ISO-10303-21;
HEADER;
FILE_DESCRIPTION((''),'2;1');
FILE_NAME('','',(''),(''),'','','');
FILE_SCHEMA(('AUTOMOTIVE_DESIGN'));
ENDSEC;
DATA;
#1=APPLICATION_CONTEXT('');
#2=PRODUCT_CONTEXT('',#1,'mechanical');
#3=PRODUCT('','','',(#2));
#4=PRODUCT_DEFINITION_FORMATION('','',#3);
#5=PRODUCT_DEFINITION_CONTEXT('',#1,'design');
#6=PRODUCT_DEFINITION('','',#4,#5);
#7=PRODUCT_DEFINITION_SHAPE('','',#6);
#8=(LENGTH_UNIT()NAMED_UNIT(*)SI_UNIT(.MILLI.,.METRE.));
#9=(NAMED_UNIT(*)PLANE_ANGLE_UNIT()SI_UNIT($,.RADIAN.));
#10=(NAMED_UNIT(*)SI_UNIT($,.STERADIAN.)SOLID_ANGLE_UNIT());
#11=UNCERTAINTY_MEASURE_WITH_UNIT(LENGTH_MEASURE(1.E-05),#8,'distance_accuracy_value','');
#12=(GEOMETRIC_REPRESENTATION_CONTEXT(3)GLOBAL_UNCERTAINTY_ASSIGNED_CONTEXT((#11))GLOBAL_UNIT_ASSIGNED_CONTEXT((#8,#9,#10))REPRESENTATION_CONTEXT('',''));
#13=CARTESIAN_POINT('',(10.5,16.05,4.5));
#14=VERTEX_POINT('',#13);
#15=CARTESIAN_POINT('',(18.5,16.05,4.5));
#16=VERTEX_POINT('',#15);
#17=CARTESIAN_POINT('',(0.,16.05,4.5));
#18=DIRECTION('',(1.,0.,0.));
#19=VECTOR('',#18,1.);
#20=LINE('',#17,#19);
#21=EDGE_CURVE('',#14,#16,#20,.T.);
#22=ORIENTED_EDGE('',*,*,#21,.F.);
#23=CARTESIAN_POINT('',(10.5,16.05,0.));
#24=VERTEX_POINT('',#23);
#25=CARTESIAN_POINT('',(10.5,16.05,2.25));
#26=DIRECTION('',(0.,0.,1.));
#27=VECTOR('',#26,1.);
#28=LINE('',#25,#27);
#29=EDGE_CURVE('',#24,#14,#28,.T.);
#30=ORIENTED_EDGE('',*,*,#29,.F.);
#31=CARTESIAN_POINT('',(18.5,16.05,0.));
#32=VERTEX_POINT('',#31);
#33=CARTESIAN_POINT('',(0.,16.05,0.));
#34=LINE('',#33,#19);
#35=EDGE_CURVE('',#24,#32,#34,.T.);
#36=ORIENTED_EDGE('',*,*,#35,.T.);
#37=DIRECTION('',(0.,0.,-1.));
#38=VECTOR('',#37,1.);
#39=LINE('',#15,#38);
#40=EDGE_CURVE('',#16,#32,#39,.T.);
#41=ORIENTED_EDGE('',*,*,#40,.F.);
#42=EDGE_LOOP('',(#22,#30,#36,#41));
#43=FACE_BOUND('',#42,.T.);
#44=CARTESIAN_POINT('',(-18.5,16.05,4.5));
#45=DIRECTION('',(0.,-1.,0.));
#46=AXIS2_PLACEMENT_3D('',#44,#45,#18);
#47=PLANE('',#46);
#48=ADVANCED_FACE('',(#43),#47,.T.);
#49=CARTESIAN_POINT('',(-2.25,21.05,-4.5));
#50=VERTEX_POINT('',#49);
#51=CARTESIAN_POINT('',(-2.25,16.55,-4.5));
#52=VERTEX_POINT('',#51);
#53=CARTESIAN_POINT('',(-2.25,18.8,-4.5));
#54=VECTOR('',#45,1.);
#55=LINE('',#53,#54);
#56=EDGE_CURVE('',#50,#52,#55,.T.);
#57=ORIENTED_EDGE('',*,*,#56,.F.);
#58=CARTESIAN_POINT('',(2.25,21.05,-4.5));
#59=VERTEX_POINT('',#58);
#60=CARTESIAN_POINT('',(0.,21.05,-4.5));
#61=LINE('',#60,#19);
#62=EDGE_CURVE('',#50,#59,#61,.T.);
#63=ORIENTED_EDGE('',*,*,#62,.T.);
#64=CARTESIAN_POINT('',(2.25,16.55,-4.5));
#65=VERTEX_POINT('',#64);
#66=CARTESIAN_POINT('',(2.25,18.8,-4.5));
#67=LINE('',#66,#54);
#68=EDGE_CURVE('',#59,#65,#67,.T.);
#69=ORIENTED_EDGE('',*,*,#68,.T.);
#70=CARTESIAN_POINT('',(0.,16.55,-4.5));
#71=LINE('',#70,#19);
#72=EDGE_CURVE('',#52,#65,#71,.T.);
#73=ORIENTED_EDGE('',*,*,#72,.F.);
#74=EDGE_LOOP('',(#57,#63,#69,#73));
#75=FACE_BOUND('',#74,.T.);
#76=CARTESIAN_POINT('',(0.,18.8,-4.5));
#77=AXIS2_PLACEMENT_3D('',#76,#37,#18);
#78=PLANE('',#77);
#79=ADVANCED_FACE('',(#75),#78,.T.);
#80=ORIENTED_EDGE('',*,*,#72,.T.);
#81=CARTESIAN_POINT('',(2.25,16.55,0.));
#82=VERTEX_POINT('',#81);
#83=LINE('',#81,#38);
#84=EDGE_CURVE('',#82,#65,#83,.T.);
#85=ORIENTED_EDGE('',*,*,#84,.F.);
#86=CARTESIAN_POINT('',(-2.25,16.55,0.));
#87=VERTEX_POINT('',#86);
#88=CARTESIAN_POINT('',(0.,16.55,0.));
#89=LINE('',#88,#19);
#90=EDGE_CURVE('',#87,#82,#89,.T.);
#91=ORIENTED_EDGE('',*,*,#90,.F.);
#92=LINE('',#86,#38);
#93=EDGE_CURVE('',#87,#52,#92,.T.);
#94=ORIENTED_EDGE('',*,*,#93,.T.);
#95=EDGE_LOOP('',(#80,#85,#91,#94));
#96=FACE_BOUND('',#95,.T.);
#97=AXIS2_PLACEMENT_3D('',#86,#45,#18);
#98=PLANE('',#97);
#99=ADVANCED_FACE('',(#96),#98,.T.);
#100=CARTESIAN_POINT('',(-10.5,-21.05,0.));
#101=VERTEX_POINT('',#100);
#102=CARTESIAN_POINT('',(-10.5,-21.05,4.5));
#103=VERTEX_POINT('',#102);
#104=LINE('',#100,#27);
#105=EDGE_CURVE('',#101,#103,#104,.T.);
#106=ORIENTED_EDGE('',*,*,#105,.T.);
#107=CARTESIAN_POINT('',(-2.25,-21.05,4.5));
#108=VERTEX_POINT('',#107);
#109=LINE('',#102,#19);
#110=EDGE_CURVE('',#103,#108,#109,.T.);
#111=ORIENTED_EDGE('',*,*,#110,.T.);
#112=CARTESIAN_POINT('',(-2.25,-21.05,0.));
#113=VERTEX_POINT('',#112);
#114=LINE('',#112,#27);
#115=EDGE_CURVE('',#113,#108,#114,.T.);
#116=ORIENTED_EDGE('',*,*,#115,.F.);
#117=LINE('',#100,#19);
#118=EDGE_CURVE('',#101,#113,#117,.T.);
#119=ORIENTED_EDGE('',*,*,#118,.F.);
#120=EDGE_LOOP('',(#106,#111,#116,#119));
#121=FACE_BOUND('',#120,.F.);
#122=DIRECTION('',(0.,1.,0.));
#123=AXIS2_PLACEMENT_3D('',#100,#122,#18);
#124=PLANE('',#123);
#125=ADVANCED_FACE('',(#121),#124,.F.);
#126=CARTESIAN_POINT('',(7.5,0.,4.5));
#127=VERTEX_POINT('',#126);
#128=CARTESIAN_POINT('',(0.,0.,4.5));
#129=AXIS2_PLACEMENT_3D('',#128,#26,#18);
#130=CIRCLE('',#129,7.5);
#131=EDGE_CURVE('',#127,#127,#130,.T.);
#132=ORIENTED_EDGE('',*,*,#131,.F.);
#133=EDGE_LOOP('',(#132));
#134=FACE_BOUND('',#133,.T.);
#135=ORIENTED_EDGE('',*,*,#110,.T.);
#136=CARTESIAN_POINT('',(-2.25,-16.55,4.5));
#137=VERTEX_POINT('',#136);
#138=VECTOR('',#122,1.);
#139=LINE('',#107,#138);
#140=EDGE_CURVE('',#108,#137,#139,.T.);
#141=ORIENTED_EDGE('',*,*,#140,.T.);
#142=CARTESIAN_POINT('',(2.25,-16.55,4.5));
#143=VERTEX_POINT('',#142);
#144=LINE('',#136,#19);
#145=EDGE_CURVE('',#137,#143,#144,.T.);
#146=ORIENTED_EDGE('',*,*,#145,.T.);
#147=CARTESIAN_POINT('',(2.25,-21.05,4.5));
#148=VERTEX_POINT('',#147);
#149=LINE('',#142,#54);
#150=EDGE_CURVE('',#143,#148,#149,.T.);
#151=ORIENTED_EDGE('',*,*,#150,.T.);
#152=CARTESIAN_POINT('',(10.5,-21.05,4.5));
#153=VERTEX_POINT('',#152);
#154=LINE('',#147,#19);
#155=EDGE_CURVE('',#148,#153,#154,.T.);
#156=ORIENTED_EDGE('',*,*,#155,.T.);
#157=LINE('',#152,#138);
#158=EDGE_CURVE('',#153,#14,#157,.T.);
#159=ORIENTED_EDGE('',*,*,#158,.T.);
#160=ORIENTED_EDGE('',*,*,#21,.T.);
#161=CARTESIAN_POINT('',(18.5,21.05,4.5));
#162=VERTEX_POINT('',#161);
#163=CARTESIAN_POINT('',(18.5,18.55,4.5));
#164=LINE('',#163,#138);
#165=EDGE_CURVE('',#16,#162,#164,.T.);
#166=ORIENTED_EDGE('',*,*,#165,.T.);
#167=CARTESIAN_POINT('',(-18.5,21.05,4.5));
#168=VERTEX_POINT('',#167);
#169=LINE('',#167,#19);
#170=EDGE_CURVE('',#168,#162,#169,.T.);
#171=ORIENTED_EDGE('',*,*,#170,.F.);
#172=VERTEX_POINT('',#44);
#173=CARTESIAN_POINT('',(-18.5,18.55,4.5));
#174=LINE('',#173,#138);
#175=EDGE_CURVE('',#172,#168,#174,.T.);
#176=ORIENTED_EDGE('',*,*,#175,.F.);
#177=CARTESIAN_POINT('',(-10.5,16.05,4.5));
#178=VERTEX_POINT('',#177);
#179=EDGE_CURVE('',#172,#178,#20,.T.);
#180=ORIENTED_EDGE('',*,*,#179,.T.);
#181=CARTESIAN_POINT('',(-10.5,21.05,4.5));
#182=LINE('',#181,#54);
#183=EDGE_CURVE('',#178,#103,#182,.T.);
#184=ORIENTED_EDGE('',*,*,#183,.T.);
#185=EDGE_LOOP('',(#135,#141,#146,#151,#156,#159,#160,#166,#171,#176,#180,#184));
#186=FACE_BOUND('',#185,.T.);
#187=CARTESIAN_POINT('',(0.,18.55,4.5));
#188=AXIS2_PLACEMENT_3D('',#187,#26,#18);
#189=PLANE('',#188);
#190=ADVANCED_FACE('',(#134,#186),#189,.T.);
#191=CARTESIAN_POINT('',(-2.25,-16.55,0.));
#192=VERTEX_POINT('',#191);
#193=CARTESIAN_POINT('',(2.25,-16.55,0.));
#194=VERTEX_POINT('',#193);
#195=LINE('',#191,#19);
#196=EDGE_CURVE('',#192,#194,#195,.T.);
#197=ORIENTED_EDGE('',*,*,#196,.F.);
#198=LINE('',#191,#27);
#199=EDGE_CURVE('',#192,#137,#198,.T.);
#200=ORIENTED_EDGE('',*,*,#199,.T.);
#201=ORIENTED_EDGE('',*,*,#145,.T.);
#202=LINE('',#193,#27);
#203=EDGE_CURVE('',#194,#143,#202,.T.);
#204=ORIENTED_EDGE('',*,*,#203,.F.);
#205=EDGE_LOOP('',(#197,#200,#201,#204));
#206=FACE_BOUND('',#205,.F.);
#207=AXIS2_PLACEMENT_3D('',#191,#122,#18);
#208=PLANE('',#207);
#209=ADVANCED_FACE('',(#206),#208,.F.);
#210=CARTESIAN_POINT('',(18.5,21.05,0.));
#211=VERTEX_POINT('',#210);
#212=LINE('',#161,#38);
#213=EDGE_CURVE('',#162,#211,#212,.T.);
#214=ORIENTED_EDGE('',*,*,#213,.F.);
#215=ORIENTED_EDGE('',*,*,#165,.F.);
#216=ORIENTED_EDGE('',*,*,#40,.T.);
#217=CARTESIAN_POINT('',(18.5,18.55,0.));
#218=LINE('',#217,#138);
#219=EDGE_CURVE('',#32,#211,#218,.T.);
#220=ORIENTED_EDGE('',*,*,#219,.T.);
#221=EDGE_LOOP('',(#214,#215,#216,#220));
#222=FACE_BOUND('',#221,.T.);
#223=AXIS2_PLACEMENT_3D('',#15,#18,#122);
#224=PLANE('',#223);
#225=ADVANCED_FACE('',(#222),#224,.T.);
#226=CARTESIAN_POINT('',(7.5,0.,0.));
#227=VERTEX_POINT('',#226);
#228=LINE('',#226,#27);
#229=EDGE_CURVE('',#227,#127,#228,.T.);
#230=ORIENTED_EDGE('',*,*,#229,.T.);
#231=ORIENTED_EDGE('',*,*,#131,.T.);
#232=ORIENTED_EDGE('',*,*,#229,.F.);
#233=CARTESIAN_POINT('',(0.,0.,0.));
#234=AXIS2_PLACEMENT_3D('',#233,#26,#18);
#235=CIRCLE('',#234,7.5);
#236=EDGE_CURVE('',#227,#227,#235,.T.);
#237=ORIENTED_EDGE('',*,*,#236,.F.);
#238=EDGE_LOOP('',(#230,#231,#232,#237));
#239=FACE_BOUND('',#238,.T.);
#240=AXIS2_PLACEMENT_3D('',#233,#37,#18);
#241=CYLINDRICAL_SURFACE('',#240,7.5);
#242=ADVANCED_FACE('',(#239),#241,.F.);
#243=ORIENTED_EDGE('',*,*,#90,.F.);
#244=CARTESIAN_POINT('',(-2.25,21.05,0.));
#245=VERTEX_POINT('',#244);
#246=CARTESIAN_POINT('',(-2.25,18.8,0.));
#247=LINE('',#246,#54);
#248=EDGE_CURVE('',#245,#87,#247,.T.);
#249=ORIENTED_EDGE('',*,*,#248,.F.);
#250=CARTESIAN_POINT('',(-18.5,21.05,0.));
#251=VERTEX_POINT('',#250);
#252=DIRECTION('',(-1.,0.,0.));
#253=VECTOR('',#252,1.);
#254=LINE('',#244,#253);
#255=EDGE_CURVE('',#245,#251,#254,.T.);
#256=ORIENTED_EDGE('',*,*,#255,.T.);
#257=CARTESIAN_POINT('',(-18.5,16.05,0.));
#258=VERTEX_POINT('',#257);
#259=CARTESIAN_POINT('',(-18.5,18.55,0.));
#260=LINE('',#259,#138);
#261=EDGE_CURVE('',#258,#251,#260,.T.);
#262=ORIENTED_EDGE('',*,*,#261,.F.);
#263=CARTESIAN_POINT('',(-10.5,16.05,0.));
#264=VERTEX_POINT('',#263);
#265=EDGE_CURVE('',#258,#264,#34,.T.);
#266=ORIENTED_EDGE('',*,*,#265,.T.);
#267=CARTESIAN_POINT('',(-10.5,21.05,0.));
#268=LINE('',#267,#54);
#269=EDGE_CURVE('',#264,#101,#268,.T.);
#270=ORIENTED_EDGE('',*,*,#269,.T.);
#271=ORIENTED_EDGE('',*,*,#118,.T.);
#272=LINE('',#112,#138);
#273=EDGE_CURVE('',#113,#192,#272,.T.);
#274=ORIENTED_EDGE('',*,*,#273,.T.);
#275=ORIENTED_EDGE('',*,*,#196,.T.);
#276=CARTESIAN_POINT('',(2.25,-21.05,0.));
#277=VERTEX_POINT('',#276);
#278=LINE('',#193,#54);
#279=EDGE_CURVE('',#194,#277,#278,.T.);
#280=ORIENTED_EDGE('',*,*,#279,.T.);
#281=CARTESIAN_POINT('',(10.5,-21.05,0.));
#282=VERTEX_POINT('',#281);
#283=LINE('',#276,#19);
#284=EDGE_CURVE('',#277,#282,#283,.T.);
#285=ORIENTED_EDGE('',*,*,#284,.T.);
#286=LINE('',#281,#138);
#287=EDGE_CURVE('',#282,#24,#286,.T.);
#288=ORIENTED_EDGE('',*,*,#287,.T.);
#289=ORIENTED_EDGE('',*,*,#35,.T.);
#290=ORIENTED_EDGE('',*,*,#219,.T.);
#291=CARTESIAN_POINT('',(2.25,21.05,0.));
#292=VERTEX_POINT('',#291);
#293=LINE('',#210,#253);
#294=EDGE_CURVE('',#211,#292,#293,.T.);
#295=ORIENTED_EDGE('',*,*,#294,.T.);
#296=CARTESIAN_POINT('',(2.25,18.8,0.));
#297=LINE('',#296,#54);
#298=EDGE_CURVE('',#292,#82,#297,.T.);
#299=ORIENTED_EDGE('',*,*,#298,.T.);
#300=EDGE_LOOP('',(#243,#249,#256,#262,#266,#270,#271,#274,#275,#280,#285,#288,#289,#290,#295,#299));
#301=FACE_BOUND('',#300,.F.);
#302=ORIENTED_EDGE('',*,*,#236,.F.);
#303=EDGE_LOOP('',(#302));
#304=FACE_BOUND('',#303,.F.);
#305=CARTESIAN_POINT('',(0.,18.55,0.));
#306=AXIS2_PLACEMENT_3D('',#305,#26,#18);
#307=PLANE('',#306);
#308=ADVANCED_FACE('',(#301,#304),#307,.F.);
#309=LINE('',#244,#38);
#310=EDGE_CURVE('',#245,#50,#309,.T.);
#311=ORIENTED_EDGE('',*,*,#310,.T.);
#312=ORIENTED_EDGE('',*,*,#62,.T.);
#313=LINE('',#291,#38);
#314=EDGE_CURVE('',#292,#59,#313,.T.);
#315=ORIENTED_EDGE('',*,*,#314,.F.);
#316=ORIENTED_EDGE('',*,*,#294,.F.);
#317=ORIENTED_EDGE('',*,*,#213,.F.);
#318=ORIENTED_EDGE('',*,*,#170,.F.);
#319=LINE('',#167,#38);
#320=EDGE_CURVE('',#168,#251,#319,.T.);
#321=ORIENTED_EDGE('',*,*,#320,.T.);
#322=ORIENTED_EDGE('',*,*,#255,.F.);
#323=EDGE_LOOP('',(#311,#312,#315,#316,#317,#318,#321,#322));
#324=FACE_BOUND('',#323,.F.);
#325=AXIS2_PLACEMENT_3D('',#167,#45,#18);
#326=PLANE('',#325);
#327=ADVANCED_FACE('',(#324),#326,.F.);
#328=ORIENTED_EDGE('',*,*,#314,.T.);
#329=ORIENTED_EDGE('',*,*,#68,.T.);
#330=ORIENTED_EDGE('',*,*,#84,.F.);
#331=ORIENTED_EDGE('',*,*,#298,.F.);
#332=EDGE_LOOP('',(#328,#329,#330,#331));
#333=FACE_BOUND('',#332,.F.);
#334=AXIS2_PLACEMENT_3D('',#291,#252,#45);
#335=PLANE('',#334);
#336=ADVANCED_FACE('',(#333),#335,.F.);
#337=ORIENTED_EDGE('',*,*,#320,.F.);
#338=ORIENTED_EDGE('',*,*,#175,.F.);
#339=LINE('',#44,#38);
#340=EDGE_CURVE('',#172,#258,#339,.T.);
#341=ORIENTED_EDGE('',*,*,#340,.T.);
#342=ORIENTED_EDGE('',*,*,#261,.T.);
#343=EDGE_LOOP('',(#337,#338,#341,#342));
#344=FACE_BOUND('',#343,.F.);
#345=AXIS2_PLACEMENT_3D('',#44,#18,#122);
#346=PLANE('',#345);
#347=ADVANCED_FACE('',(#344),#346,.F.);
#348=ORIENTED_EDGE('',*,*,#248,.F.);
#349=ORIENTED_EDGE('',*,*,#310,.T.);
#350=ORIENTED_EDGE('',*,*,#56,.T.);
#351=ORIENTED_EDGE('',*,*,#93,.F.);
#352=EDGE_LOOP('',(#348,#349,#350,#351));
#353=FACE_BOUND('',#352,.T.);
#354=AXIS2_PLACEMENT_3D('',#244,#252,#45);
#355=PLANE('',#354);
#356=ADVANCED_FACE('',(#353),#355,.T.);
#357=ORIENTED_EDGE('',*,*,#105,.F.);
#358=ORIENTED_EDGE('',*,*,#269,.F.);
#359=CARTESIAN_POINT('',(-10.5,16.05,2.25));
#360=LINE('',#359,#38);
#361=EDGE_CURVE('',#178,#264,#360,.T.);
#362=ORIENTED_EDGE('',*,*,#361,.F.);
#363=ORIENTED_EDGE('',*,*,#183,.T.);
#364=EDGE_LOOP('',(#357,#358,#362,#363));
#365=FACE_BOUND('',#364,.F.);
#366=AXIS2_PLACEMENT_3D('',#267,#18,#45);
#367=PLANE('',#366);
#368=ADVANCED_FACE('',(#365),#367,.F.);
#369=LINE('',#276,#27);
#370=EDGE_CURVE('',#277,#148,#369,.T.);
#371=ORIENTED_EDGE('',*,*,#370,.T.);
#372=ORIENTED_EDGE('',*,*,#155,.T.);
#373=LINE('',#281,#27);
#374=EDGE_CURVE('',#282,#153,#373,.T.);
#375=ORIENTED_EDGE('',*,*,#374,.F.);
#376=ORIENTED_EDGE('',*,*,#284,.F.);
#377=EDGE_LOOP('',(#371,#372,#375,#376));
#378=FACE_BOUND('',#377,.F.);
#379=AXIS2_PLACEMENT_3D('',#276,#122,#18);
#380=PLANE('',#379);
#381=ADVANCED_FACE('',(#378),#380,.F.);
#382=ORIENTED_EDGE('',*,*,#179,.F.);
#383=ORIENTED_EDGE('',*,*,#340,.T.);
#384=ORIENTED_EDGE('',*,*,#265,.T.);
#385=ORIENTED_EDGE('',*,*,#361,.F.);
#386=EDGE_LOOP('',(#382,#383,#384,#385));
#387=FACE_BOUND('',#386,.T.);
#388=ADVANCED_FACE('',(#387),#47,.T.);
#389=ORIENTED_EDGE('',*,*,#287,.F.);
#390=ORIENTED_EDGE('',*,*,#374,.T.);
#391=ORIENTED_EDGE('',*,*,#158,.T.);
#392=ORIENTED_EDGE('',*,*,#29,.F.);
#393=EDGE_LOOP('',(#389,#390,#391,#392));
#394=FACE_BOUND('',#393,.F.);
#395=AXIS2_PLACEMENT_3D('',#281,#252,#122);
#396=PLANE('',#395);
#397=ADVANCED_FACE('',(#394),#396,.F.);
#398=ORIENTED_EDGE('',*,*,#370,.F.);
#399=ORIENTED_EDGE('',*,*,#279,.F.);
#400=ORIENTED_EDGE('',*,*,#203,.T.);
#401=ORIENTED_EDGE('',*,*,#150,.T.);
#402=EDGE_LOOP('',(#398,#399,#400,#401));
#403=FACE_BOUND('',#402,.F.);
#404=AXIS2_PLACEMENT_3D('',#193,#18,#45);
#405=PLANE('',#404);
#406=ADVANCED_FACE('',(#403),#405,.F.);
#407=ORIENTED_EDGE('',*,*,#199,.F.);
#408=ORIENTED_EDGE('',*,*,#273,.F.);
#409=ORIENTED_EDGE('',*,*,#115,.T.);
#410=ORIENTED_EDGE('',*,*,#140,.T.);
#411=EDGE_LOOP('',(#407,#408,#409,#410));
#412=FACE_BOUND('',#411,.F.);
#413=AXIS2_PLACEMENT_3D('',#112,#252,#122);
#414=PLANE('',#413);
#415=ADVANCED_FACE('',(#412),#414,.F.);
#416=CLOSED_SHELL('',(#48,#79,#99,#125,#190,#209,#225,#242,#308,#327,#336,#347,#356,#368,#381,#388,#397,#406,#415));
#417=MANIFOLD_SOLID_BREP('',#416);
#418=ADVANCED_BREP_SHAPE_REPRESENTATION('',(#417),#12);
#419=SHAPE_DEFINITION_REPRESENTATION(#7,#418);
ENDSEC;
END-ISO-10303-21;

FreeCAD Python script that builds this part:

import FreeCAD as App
import Part
import Sketcher

V = App.Vector

doc = App.newDocument("Part")
params = doc.addObject("Spreadsheet::Sheet", "Params")
for row, (alias, value) in enumerate([
    ("sketch1_diameter", "15 mm"),
    ("sketch1_width", "21 mm"),
    ("sketch1_width2", "4.5 mm"),
    ("sketch1_height", "42.1 mm"),
    ("pad1_length", "4.5 mm"),
    ("sketch2_width", "4.5 mm"),
    ("pad2_length", "4.5 mm"),
    ("sketch3_width", "37 mm"),
    ("sketch3_height", "5 mm"),
    ("pad3_length", "4.5 mm"),
], start=1):
    params.set(f"A{row}", alias)
    params.set(f"B{row}", "=" + value)
    params.setAlias(f"B{row}", alias)

body = doc.addObject("PartDesign::Body", "Body")

# Sketch on XY plane
sketch1 = doc.addObject("Sketcher::SketchObject", "Sketch")
body.addObject(sketch1)
sketch1.AttachmentSupport = (doc.XY_Plane, [""])
sketch1.MapMode = "FlatFace"
sketch1.addGeometry([
    Part.LineSegment(V(10.5, 21.05, 0), V(-10.5, 21.05, 0)),  # 0
    Part.LineSegment(V(-10.5, 21.05, 0), V(-10.5, -21.05, 0)),  # 1
    Part.LineSegment(V(-10.5, -21.05, 0), V(-2.25, -21.05, 0)),  # 2
    Part.LineSegment(V(-2.25, -21.05, 0), V(-2.25, -16.55, 0)),  # 3
    Part.LineSegment(V(-2.25, -16.55, 0), V(2.25, -16.55, 0)),  # 4
    Part.LineSegment(V(2.25, -16.55, 0), V(2.25, -21.05, 0)),  # 5
    Part.LineSegment(V(2.25, -21.05, 0), V(10.5, -21.05, 0)),  # 6
    Part.LineSegment(V(10.5, -21.05, 0), V(10.5, 21.05, 0)),  # 7
    Part.Circle(V(0, 0, 0), V(0, 0, 1), 7.5),  # 8
], False)
sketch1.addConstraint([
    Sketcher.Constraint("Coincident", 0, 2, 1, 1),
    Sketcher.Constraint("Coincident", 1, 2, 2, 1),
    Sketcher.Constraint("Coincident", 2, 2, 3, 1),
    Sketcher.Constraint("Coincident", 3, 2, 4, 1),
    Sketcher.Constraint("Coincident", 4, 2, 5, 1),
    Sketcher.Constraint("Coincident", 5, 2, 6, 1),
    Sketcher.Constraint("Coincident", 6, 2, 7, 1),
    Sketcher.Constraint("Coincident", 7, 2, 0, 1),
    Sketcher.Constraint("Horizontal", 0),
    Sketcher.Constraint("Vertical", 1),
    Sketcher.Constraint("Horizontal", 2),
    Sketcher.Constraint("Vertical", 3),
    Sketcher.Constraint("Horizontal", 4),
    Sketcher.Constraint("Vertical", 5),
    Sketcher.Constraint("Horizontal", 6),
    Sketcher.Constraint("Vertical", 7),
    Sketcher.Constraint("Coincident", 8, 3, -1, 1),
    Sketcher.Constraint("Symmetric", 0, 2, 6, 2, -1, 1),
    Sketcher.Constraint("Symmetric", 2, 2, 5, 2, -2),
    Sketcher.Constraint("Equal", 4, 3),
    Sketcher.Constraint("Diameter", 8, 15.0),
    Sketcher.Constraint("DistanceX", 0, 2, 0, 1, 21.0),
    Sketcher.Constraint("DistanceX", 4, 1, 4, 2, 4.5),
    Sketcher.Constraint("DistanceY", 1, 2, 1, 1, 42.1),
])
sketch1.setExpression("Constraints[20]", "Params.sketch1_diameter")
sketch1.setExpression("Constraints[21]", "Params.sketch1_width")
sketch1.setExpression("Constraints[22]", "Params.sketch1_width2")
sketch1.setExpression("Constraints[23]", "Params.sketch1_height")
pad1 = doc.addObject("PartDesign::Pad", "Pad")
body.addObject(pad1)
pad1.Profile = sketch1
pad1.setExpression("Length", "Params.pad1_length")

# Sketch on XY plane
sketch2 = doc.addObject("Sketcher::SketchObject", "Sketch001")
body.addObject(sketch2)
sketch2.AttachmentSupport = (doc.XY_Plane, [""])
sketch2.MapMode = "FlatFace"
sketch2.addGeometry([
    Part.LineSegment(V(-2.25, 16.55, 0), V(-2.25, 21.05, 0)),
    Part.LineSegment(V(-2.25, 21.05, 0), V(2.25, 21.05, 0)),
    Part.LineSegment(V(2.25, 21.05, 0), V(2.25, 16.55, 0)),
    Part.LineSegment(V(2.25, 16.55, 0), V(-2.25, 16.55, 0)),
], False)
sketch2.addConstraint([
    Sketcher.Constraint("Coincident", 0, 2, 1, 1),
    Sketcher.Constraint("Coincident", 1, 2, 2, 1),
    Sketcher.Constraint("Coincident", 2, 2, 3, 1),
    Sketcher.Constraint("Coincident", 3, 2, 0, 1),
    Sketcher.Constraint("Vertical", 0),
    Sketcher.Constraint("Horizontal", 1),
    Sketcher.Constraint("Vertical", 2),
    Sketcher.Constraint("Horizontal", 3),
    Sketcher.Constraint("Equal", 3, 0),
    Sketcher.Constraint("DistanceX", 1, 1, 1, 2, 4.5),
    Sketcher.Constraint("DistanceX", 0, 2, -1, 1, 2.25),
    Sketcher.Constraint("DistanceY", -1, 1, 0, 2, 21.05),
])
sketch2.setExpression("Constraints[9]", "Params.sketch2_width")
pad2 = doc.addObject("PartDesign::Pad", "Pad001")
body.addObject(pad2)
pad2.Profile = sketch2
pad2.setExpression("Length", "Params.pad2_length")
pad2.Reversed = True

# Sketch on XY plane
sketch3 = doc.addObject("Sketcher::SketchObject", "Sketch002")
body.addObject(sketch3)
sketch3.AttachmentSupport = (doc.XY_Plane, [""])
sketch3.MapMode = "FlatFace"
sketch3.AttachmentOffset = App.Placement(V(0, 0, 4.5), App.Rotation())
sketch3.addGeometry([
    Part.LineSegment(V(-18.5, 21.05, 0), V(-18.5, 16.05, 0)),
    Part.LineSegment(V(-18.5, 16.05, 0), V(18.5, 16.05, 0)),
    Part.LineSegment(V(18.5, 16.05, 0), V(18.5, 21.05, 0)),
    Part.LineSegment(V(18.5, 21.05, 0), V(-18.5, 21.05, 0)),
], False)
sketch3.addConstraint([
    Sketcher.Constraint("Coincident", 0, 2, 1, 1),
    Sketcher.Constraint("Coincident", 1, 2, 2, 1),
    Sketcher.Constraint("Coincident", 2, 2, 3, 1),
    Sketcher.Constraint("Coincident", 3, 2, 0, 1),
    Sketcher.Constraint("Vertical", 0),
    Sketcher.Constraint("Horizontal", 1),
    Sketcher.Constraint("Vertical", 2),
    Sketcher.Constraint("Horizontal", 3),
    Sketcher.Constraint("DistanceX", 1, 1, 1, 2, 37.0),
    Sketcher.Constraint("DistanceY", 0, 2, 0, 1, 5.0),
    Sketcher.Constraint("DistanceX", 0, 2, -1, 1, 18.5),
    Sketcher.Constraint("DistanceY", -1, 1, 0, 2, 16.05),
])
sketch3.setExpression("Constraints[8]", "Params.sketch3_width")
sketch3.setExpression("Constraints[9]", "Params.sketch3_height")
pad3 = doc.addObject("PartDesign::Pad", "Pad002")
body.addObject(pad3)
pad3.Profile = sketch3
pad3.setExpression("Length", "Params.pad3_length")
pad3.Reversed = True

doc.recompute()
